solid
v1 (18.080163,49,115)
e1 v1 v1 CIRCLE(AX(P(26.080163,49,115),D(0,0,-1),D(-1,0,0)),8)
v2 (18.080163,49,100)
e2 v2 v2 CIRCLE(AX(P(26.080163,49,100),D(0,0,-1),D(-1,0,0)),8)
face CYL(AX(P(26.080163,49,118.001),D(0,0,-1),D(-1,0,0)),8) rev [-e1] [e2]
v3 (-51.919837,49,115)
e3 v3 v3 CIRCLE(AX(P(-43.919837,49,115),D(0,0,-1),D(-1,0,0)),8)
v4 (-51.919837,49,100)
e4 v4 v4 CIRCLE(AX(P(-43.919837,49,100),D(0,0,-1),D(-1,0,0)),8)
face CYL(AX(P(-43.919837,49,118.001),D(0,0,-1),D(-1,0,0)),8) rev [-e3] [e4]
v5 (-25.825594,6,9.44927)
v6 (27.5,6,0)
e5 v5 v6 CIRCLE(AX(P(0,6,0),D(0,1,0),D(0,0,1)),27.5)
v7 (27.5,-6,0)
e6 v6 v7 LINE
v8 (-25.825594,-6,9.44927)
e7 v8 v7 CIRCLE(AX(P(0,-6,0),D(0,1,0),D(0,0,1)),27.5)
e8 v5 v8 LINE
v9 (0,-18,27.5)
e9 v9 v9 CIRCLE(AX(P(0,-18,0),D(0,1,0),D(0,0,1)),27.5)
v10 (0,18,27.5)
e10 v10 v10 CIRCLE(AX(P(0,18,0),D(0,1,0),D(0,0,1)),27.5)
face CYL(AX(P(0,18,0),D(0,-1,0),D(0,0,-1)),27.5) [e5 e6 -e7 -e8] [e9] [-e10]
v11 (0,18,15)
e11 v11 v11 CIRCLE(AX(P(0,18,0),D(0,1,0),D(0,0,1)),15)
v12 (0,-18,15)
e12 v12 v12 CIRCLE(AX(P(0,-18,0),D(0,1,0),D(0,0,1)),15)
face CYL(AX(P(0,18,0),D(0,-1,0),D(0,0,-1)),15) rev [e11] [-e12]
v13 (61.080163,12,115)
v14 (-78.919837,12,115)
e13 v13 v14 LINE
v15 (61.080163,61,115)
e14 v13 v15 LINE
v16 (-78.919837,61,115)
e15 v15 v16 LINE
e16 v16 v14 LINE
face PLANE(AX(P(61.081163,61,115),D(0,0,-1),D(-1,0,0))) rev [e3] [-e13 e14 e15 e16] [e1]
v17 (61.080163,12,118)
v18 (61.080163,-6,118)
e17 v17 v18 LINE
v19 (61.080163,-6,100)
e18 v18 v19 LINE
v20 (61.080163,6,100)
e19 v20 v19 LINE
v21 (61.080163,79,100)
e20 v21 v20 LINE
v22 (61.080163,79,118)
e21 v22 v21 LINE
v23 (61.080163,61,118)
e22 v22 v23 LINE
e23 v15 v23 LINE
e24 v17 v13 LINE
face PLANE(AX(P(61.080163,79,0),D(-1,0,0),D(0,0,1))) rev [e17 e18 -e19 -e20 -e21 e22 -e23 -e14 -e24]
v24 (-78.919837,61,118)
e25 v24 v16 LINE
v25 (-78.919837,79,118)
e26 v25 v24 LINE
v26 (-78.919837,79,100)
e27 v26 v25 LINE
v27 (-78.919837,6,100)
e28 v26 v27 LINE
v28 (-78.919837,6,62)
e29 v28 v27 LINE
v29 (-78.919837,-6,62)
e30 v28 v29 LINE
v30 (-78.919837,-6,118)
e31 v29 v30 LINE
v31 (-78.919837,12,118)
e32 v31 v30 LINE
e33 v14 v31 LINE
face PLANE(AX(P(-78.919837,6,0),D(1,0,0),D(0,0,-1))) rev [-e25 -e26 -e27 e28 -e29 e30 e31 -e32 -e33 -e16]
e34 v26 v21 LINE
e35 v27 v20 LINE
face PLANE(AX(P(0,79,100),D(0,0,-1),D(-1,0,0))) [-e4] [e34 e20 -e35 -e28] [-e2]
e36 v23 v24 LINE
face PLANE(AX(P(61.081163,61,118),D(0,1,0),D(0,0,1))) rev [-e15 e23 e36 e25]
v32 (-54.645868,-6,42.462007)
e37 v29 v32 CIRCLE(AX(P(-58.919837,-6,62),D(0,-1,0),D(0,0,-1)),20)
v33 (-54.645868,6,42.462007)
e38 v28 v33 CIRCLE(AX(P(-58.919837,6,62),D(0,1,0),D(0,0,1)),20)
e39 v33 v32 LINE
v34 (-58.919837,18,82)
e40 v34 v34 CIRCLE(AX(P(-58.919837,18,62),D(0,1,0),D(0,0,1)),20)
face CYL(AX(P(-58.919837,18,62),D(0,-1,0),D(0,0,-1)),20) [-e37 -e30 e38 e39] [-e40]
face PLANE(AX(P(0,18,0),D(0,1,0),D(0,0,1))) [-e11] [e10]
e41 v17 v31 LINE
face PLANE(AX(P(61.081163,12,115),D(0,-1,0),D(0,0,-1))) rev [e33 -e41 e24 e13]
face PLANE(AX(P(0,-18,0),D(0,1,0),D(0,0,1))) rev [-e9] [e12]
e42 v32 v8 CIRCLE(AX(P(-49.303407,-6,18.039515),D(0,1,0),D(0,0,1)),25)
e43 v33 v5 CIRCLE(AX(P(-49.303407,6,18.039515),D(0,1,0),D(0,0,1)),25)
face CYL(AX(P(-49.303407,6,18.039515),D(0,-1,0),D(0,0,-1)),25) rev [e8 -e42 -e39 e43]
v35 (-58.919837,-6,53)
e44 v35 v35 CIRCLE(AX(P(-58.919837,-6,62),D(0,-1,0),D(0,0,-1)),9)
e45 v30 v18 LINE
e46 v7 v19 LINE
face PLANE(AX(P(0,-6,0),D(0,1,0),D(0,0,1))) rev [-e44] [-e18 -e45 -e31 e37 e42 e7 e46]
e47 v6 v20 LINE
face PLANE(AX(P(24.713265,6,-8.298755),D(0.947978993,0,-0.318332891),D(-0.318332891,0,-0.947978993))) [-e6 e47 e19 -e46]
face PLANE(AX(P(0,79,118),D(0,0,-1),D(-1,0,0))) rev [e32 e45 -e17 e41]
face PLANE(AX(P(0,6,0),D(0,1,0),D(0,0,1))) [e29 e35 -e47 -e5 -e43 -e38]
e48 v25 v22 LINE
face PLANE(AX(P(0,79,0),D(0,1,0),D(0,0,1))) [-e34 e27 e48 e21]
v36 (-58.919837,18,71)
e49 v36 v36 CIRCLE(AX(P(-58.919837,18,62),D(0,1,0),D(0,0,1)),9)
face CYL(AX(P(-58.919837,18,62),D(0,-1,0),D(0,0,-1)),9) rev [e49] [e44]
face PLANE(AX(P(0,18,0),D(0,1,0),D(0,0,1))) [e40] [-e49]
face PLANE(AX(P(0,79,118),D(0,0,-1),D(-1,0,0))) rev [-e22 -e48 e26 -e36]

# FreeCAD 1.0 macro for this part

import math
import FreeCAD as App
import Part
import Sketcher
from FreeCAD import Vector

doc = App.newDocument("Part")
body = doc.addObject("PartDesign::Body", "Body")

# Sketch on XZ plane
sketch1 = body.newObject("Sketcher::SketchObject", "Sketch")
sketch1.AttachmentSupport = (doc.getObject("XZ_Plane"), [""])
sketch1.MapMode = "FlatFace"
sketch1.addGeometry([
    Part.Circle(Vector(0, 0, 0), Vector(0, 0, 1), 28),
    Part.Circle(Vector(0, 0, 0), Vector(0, 0, 1), 15),
], False)
sketch1.addConstraint([
    Sketcher.Constraint("Coincident", 0, 3, -1, 1),
    Sketcher.Constraint("Coincident", 1, 3, -1, 1),
    Sketcher.Constraint("Diameter", 0, 55.0),
    Sketcher.Constraint("Diameter", 1, 30.0),
])
pad1 = body.newObject("PartDesign::Pad", "Pad")
pad1.Profile = sketch1
pad1.Length = 36
pad1.Midplane = True

# Sketch on XZ plane
sketch2 = body.newObject("Sketcher::SketchObject", "Sketch001")
sketch2.AttachmentSupport = (doc.getObject("XZ_Plane"), [""])
sketch2.MapMode = "FlatFace"
sketch2.addGeometry([
    Part.LineSegment(Vector(-79, 62, 0), Vector(-79, 100, 0)),  # 0
    Part.LineSegment(Vector(-79, 100, 0), Vector(61, 100, 0)),  # 1
    Part.LineSegment(Vector(61, 100, 0), Vector(28, 0, 0)),  # 2
    Part.ArcOfCircle(Part.Circle(Vector(0, 0, 0), Vector(0, 0, 1), 28), math.radians(0), math.radians(160)),  # 3
    Part.ArcOfCircle(Part.Circle(Vector(-49, 18, 0), Vector(0, 0, 1), 25), math.radians(-20), math.radians(102)),  # 4
    Part.ArcOfCircle(Part.Circle(Vector(-59, 62, 0), Vector(0, 0, 1), 20), math.radians(-78), math.radians(0)),  # 5
    Part.ArcOfCircle(Part.Circle(Vector(-59, 62, 0), Vector(0, 0, 1), 20), math.radians(0), math.radians(180)),  # 6
], False)
sketch2.addConstraint([
    Sketcher.Constraint("Coincident", 0, 2, 1, 1),
    Sketcher.Constraint("Coincident", 1, 2, 2, 1),
    Sketcher.Constraint("Coincident", 2, 2, 3, 1),
    Sketcher.Constraint("Tangent", 3, 2, 4, 1),
    Sketcher.Constraint("Tangent", 4, 2, 5, 1),
    Sketcher.Constraint("Tangent", 5, 2, 6, 1),
    Sketcher.Constraint("Tangent", 6, 2, 0, 1),
    Sketcher.Constraint("Vertical", 0),
    Sketcher.Constraint("Horizontal", 1),
    Sketcher.Constraint("Coincident", 3, 3, -1, 1),
    Sketcher.Constraint("Equal", 5, 6),
    Sketcher.Constraint("PointOnObject", 2, 2, -1),
    Sketcher.Constraint("Horizontal", 6, 3, 5, 2),
    Sketcher.Constraint("Radius", 4, 25.0),
    Sketcher.Constraint("Radius", 5, 20.0),
    Sketcher.Constraint("Radius", 3, 27.5),
    Sketcher.Constraint("DistanceX", 1, 1, 1, 2, 140.0),
    Sketcher.Constraint("DistanceY", 0, 1, 0, 2, 38.0),
    Sketcher.Constraint("DistanceY", -1, 1, 5, 3, 62.0),
    Sketcher.Constraint("Distance", 2, 105.48757),
])
pad2 = body.newObject("PartDesign::Pad", "Pad001")
pad2.Profile = sketch2
pad2.Length = 12
pad2.Midplane = True

# Sketch on XZ plane
sketch3 = body.newObject("Sketcher::SketchObject", "Sketch002")
sketch3.AttachmentSupport = (doc.getObject("XZ_Plane"), [""])
sketch3.MapMode = "FlatFace"
sketch3.addGeometry([
    Part.Circle(Vector(-59, 62, 0), Vector(0, 0, 1), 20),
    Part.Circle(Vector(-59, 62, 0), Vector(0, 0, 1), 9),
], False)
sketch3.addConstraint([
    Sketcher.Constraint("Coincident", 1, 3, 0, 3),
    Sketcher.Constraint("Diameter", 0, 40.0),
    Sketcher.Constraint("Diameter", 1, 18.0),
    Sketcher.Constraint("DistanceY", -1, 1, 0, 3, 62.0),
    Sketcher.Constraint("DistanceX", 0, 3, -1, 1, 58.919837),
])
pad3 = body.newObject("PartDesign::Pad", "Pad002")
pad3.Profile = sketch3
pad3.Length = 36
pad3.Midplane = True

# Sketch on XZ plane
sketch4 = body.newObject("Sketcher::SketchObject", "Sketch003")
sketch4.AttachmentSupport = (doc.getObject("XZ_Plane"), [""])
sketch4.MapMode = "FlatFace"
sketch4.AttachmentOffset = App.Placement(Vector(0, 0, 18), App.Rotation())
sketch4.addGeometry([
    Part.Circle(Vector(-59, 62, 0), Vector(0, 0, 1), 20),
    Part.Circle(Vector(-59, 62, 0), Vector(0, 0, 1), 9),
], False)
sketch4.addConstraint([
    Sketcher.Constraint("Coincident", 1, 3, 0, 3),
    Sketcher.Constraint("Diameter", 0, 40.0),
    Sketcher.Constraint("Diameter", 1, 18.0),
    Sketcher.Constraint("DistanceY", -1, 1, 0, 3, 62.0),
    Sketcher.Constraint("DistanceX", 0, 3, -1, 1, 58.919837),
])
pocket1 = body.newObject("PartDesign::Pocket", "Pocket")
pocket1.Profile = sketch4
pocket1.Length = 12

# Sketch on XZ plane
sketch5 = body.newObject("Sketcher::SketchObject", "Sketch004")
sketch5.AttachmentSupport = (doc.getObject("XZ_Plane"), [""])
sketch5.MapMode = "FlatFace"
sketch5.addGeometry([
    Part.LineSegment(Vector(-79, 100, 0), Vector(-79, 118, 0)),
    Part.LineSegment(Vector(-79, 118, 0), Vector(61, 118, 0)),
    Part.LineSegment(Vector(61, 118, 0), Vector(61, 100, 0)),
    Part.LineSegment(Vector(61, 100, 0), Vector(-79, 100, 0)),
], False)
sketch5.addConstraint([
    Sketcher.Constraint("Coincident", 0, 2, 1, 1),
    Sketcher.Constraint("Coincident", 1, 2, 2, 1),
    Sketcher.Constraint("Coincident", 2, 2, 3, 1),
    Sketcher.Constraint("Coincident", 3, 2, 0, 1),
    Sketcher.Constraint("Vertical", 0),
    Sketcher.Constraint("Horizontal", 1),
    Sketcher.Constraint("Vertical", 2),
    Sketcher.Constraint("Horizontal", 3),
    Sketcher.Constraint("DistanceX", 1, 1, 1, 2, 140.0),
    Sketcher.Constraint("DistanceY", 0, 1, 0, 2, 18.0),
    Sketcher.Constraint("DistanceY", -1, 1, 0, 2, 118.0),
    Sketcher.Constraint("DistanceX", 0, 2, -1, 1, 78.919837),
])
pad4 = body.newObject("PartDesign::Pad", "Pad003")
pad4.Profile = sketch5
pad4.Length = 79
pad4.Reversed = True

# Sketch on XY plane
sketch6 = body.newObject("Sketcher::SketchObject", "Sketch005")
sketch6.AttachmentSupport = (doc.getObject("XY_Plane"), [""])
sketch6.MapMode = "FlatFace"
sketch6.AttachmentOffset = App.Placement(Vector(0, 0, 100), App.Rotation())
sketch6.addGeometry(Part.Circle(Vector(26, 49, 0), Vector(0, 0, 1), 8), False)
sketch6.addConstraint([
    Sketcher.Constraint("Diameter", 0, 16.0),
    Sketcher.Constraint("DistanceY", -1, 1, 0, 3, 49.0),
    Sketcher.Constraint("DistanceX", -1, 1, 0, 3, 26.080163),
])
pocket2 = body.newObject("PartDesign::Pocket", "Pocket001")
pocket2.Profile = sketch6
pocket2.Type = "UpToFirst"
pocket2.Reversed = True

# Sketch on XY plane
sketch7 = body.newObject("Sketcher::SketchObject", "Sketch006")
sketch7.AttachmentSupport = (doc.getObject("XY_Plane"), [""])
sketch7.MapMode = "FlatFace"
sketch7.AttachmentOffset = App.Placement(Vector(0, 0, 100), App.Rotation())
sketch7.addGeometry(Part.Circle(Vector(-44, 49, 0), Vector(0, 0, 1), 8), False)
sketch7.addConstraint([
    Sketcher.Constraint("Diameter", 0, 16.0),
    Sketcher.Constraint("DistanceY", -1, 1, 0, 3, 49.0),
    Sketcher.Constraint("DistanceX", 0, 3, -1, 1, 43.919837),
])
pocket3 = body.newObject("PartDesign::Pocket", "Pocket002")
pocket3.Profile = sketch7
pocket3.Type = "UpToFirst"
pocket3.Reversed = True

# Sketch on YZ plane
sketch8 = body.newObject("Sketcher::SketchObject", "Sketch007")
sketch8.AttachmentSupport = (doc.getObject("YZ_Plane"), [""])
sketch8.MapMode = "FlatFace"
sketch8.AttachmentOffset = App.Placement(Vector(0, 0, -78.919837), App.Rotation())
sketch8.addGeometry([
    Part.LineSegment(Vector(61, 115, 0), Vector(12, 115, 0)),
    Part.LineSegment(Vector(12, 115, 0), Vector(12, 118, 0)),
    Part.LineSegment(Vector(12, 118, 0), Vector(61, 118, 0)),
    Part.LineSegment(Vector(61, 118, 0), Vector(61, 115, 0)),
], False)
sketch8.addConstraint([
    Sketcher.Constraint("Coincident", 0, 2, 1, 1),
    Sketcher.Constraint("Coincident", 1, 2, 2, 1),
    Sketcher.Constraint("Coincident", 2, 2, 3, 1),
    Sketcher.Constraint("Coincident", 3, 2, 0, 1),
    Sketcher.Constraint("Horizontal", 0),
    Sketcher.Constraint("Vertical", 1),
    Sketcher.Constraint("Horizontal", 2),
    Sketcher.Constraint("Vertical", 3),
    Sketcher.Constraint("DistanceX", 0, 2, 0, 1, 49.0),
    Sketcher.Constraint("DistanceY", 1, 1, 1, 2, 3.0),
    Sketcher.Constraint("DistanceX", -1, 1, 0, 2, 12.0),
    Sketcher.Constraint("DistanceY", -1, 1, 0, 2, 115.0),
])
pocket4 = body.newObject("PartDesign::Pocket", "Pocket003")
pocket4.Profile = sketch8
pocket4.Type = "UpToFirst"
pocket4.Reversed = True

# Sketch on XZ plane
sketch9 = body.newObject("Sketcher::SketchObject", "Sketch008")
sketch9.AttachmentSupport = (doc.getObject("XZ_Plane"), [""])
sketch9.MapMode = "FlatFace"
sketch9.addGeometry([
    Part.LineSegment(Vector(-79, 100, 0), Vector(-79, 118, 0)),
    Part.LineSegment(Vector(-79, 118, 0), Vector(61, 118, 0)),
    Part.LineSegment(Vector(61, 118, 0), Vector(61, 100, 0)),
    Part.LineSegment(Vector(61, 100, 0), Vector(-79, 100, 0)),
], False)
sketch9.addConstraint([
    Sketcher.Constraint("Coincident", 0, 2, 1, 1),
    Sketcher.Constraint("Coincident", 1, 2, 2, 1),
    Sketcher.Constraint("Coincident", 2, 2, 3, 1),
    Sketcher.Constraint("Coincident", 3, 2, 0, 1),
    Sketcher.Constraint("Vertical", 0),
    Sketcher.Constraint("Horizontal", 1),
    Sketcher.Constraint("Vertical", 2),
    Sketcher.Constraint("Horizontal", 3),
    Sketcher.Constraint("DistanceX", 1, 1, 1, 2, 140.0),
    Sketcher.Constraint("DistanceY", 0, 1, 0, 2, 18.0),
    Sketcher.Constraint("DistanceY", -1, 1, 0, 2, 118.0),
    Sketcher.Constraint("DistanceX", 0, 2, -1, 1, 78.919837),
])
pad5 = body.newObject("PartDesign::Pad", "Pad004")
pad5.Profile = sketch9
pad5.Length = 6

doc.recompute()
